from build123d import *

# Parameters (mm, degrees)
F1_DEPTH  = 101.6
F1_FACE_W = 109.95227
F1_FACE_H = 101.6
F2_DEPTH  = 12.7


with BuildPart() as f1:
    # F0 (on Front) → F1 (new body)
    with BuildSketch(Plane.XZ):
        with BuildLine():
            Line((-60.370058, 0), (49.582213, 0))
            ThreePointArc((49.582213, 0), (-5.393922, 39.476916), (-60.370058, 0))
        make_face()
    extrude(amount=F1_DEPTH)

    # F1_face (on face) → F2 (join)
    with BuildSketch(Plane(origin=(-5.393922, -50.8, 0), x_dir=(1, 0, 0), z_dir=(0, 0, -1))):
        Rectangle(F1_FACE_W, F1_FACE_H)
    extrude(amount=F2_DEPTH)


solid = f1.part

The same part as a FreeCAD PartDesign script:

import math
import FreeCAD as App
import Part
import Sketcher
Q = App.Units.Quantity


def add_polygon(sketch, points):
    """Adds a closed chain of lines whose ends are joined by coincident constraints."""
    first, n = sketch.GeometryCount, len(points)
    for a, b in zip(points, points[1:] + points[:1]):
        sketch.addGeometry(Part.LineSegment(App.Vector(*a, 0), App.Vector(*b, 0)), False)
    for i in range(n):
        sketch.addConstraint(Sketcher.Constraint("Coincident", first + i, 2, first + (i + 1) % n, 1))

doc = App.newDocument("Part")
body = doc.addObject("PartDesign::Body", "Body")

# Sketch on XZ plane
sketch1 = doc.addObject("Sketcher::SketchObject", "Sketch")
body.addObject(sketch1)
sketch1.AttachmentSupport = (doc.XZ_Plane, [""])
sketch1.MapMode = "FlatFace"
sketch1.addGeometry(Part.LineSegment(App.Vector(-60, 0, 0), App.Vector(50, 0, 0)), False)
sketch1.addGeometry(Part.ArcOfCircle(Part.Circle(App.Vector(-5, -19, 0), App.Vector(0, 0, 1), 58), math.radians(19), math.radians(161)), False)
sketch1.addConstraint(Sketcher.Constraint("Coincident", 0, 1, 1, 2))
sketch1.addConstraint(Sketcher.Constraint("Coincident", 1, 1, 0, 2))
sketch1.addConstraint(Sketcher.Constraint("Horizontal", 0))
sketch1.addConstraint(Sketcher.Constraint("PointOnObject", 0, 1, -1))
sketch1.addConstraint(Sketcher.Constraint("Radius", 1, 58.018747))
sketch1.addConstraint(Sketcher.Constraint("DistanceX", 0, 1, 0, 2, 109.952271))
sketch1.addConstraint(Sketcher.Constraint("DistanceX", 1, 3, -1, 1, 5.393923))
pad1 = doc.addObject("PartDesign::Pad", "Pad")
body.addObject(pad1)
pad1.Profile = sketch1
pad1.Length = Q("4 in")

# Sketch on XY plane
sketch2 = doc.addObject("Sketcher::SketchObject", "Sketch001")
body.addObject(sketch2)
sketch2.AttachmentSupport = (doc.XY_Plane, [""])
sketch2.MapMode = "FlatFace"
add_polygon(sketch2, [(-60, -102), (-60, 0), (50, 0), (50, -102)])  # lines 0-3
sketch2.addConstraint(Sketcher.Constraint("Vertical", 0))
sketch2.addConstraint(Sketcher.Constraint("Horizontal", 1))
sketch2.addConstraint(Sketcher.Constraint("Vertical", 2))
sketch2.addConstraint(Sketcher.Constraint("Horizontal", 3))
sketch2.addConstraint(Sketcher.Constraint("PointOnObject", 0, 2, -1))
sketch2.addConstraint(Sketcher.Constraint("DistanceY", 0, 1, 0, 2, Q("4 in")))
sketch2.addConstraint(Sketcher.Constraint("DistanceX", 1, 1, 1, 2, 109.95227))
sketch2.addConstraint(Sketcher.Constraint("DistanceX", 0, 2, -1, 1, 60.370057))
pad2 = doc.addObject("PartDesign::Pad", "Pad001")
body.addObject(pad2)
pad2.Profile = sketch2
pad2.Length = Q("0.5 in")
pad2.Reversed = True

doc.recompute()
